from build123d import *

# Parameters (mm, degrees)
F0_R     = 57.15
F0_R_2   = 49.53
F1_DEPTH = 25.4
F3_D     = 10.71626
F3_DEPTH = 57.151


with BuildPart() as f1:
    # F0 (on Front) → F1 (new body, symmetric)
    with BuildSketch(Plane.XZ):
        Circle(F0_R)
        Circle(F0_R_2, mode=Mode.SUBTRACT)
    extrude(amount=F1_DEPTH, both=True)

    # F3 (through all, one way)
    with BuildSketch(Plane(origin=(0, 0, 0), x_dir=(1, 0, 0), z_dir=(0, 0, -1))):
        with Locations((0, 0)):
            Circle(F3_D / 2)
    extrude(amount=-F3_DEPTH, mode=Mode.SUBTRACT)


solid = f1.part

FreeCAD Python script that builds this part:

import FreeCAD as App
import Part
import Sketcher
from FreeCAD import Vector
Q = App.Units.Quantity

doc = App.newDocument("Part")
body = doc.addObject("PartDesign::Body", "Body")

# Sketch on XZ plane
sketch1 = body.newObject("Sketcher::SketchObject", "Sketch")
sketch1.AttachmentSupport = (doc.getObject("XZ_Plane"), [""])
sketch1.MapMode = "FlatFace"
sketch1.addGeometry(Part.Circle(Vector(0, 0, 0), Vector(0, 0, 1), 57), False)
sketch1.addGeometry(Part.Circle(Vector(0, 0, 0), Vector(0, 0, 1), 50), False)
sketch1.addConstraint(Sketcher.Constraint("Coincident", 0, 3, -1, 1))
sketch1.addConstraint(Sketcher.Constraint("Coincident", 1, 3, -1, 1))
sketch1.addConstraint(Sketcher.Constraint("Diameter", 0, Q("4.5 in")))
sketch1.addConstraint(Sketcher.Constraint("Diameter", 1, Q("3.9 in")))
pad1 = body.newObject("PartDesign::Pad", "Pad")
pad1.Profile = sketch1
pad1.Length = Q("2 in")
pad1.Midplane = True

# Sketch on XY plane
sketch2 = body.newObject("Sketcher::SketchObject", "Sketch001")
sketch2.AttachmentSupport = (doc.getObject("XY_Plane"), [""])
sketch2.MapMode = "FlatFace"
sketch2.addGeometry(Part.Circle(Vector(0, 0, 0), Vector(0, 0, 1), 5), False)
sketch2.addConstraint(Sketcher.Constraint("Coincident", 0, 3, -1, 1))
sketch2.addConstraint(Sketcher.Constraint("Diameter", 0, Q("0.4219 in")))
pocket1 = body.newObject("PartDesign::Pocket", "Pocket")
pocket1.Profile = sketch2
pocket1.Type = "ThroughAll"
pocket1.Reversed = True

doc.recompute()
